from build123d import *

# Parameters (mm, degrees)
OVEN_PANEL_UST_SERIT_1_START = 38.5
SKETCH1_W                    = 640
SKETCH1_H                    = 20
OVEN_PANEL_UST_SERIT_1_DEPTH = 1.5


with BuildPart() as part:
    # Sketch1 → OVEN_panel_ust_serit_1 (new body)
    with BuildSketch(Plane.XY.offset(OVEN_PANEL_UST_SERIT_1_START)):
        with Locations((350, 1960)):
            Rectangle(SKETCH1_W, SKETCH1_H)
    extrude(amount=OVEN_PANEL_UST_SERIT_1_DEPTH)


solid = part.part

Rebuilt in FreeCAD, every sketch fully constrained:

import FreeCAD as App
import Part
import Sketcher

V = App.Vector


def add_polygon(sketch, points):
    """Adds a closed chain of lines whose ends are joined by coincident constraints."""
    first, n = sketch.GeometryCount, len(points)
    for a, b in zip(points, points[1:] + points[:1]):
        sketch.addGeometry(Part.LineSegment(App.Vector(*a, 0), App.Vector(*b, 0)), False)
    for i in range(n):
        sketch.addConstraint(Sketcher.Constraint("Coincident", first + i, 2, first + (i + 1) % n, 1))

doc = App.newDocument("Part")
params = doc.addObject("Spreadsheet::Sheet", "Params")
for row, (alias, value) in enumerate([
    ("sketch1_width", "640 mm"),
    ("sketch1_height", "20 mm"),
    ("pad1_length", "1.5 mm"),
], start=1):
    params.set(f"A{row}", alias)
    params.set(f"B{row}", "=" + value)
    params.setAlias(f"B{row}", alias)

body = doc.addObject("PartDesign::Body", "Body")

# Sketch on XY plane
sketch1 = body.newObject("Sketcher::SketchObject", "Sketch")
sketch1.AttachmentSupport = (doc.getObject("XY_Plane"), [""])
sketch1.MapMode = "FlatFace"
sketch1.AttachmentOffset = App.Placement(V(0, 0, 38.5), App.Rotation())
add_polygon(sketch1, [(30, 1970), (30, 1950), (670, 1950), (670, 1970)])  # lines 0-3
sketch1.addConstraint([
    Sketcher.Constraint("Vertical", 0),
    Sketcher.Constraint("Horizontal", 1),
    Sketcher.Constraint("Vertical", 2),
    Sketcher.Constraint("Horizontal", 3),
    Sketcher.Constraint("DistanceX", 1, 1, 1, 2, 640.0),
    Sketcher.Constraint("DistanceY", 0, 2, 0, 1, 20.0),
    Sketcher.Constraint("DistanceX", -1, 1, 0, 2, 30.0),
    Sketcher.Constraint("DistanceY", -1, 1, 0, 2, 1950.0),
])
sketch1.setExpression("Constraints[8]", "Params.sketch1_width")
sketch1.setExpression("Constraints[9]", "Params.sketch1_height")
pad1 = body.newObject("PartDesign::Pad", "Pad")
pad1.Profile = sketch1
pad1.setExpression("Length", "Params.pad1_length")

doc.recompute()
